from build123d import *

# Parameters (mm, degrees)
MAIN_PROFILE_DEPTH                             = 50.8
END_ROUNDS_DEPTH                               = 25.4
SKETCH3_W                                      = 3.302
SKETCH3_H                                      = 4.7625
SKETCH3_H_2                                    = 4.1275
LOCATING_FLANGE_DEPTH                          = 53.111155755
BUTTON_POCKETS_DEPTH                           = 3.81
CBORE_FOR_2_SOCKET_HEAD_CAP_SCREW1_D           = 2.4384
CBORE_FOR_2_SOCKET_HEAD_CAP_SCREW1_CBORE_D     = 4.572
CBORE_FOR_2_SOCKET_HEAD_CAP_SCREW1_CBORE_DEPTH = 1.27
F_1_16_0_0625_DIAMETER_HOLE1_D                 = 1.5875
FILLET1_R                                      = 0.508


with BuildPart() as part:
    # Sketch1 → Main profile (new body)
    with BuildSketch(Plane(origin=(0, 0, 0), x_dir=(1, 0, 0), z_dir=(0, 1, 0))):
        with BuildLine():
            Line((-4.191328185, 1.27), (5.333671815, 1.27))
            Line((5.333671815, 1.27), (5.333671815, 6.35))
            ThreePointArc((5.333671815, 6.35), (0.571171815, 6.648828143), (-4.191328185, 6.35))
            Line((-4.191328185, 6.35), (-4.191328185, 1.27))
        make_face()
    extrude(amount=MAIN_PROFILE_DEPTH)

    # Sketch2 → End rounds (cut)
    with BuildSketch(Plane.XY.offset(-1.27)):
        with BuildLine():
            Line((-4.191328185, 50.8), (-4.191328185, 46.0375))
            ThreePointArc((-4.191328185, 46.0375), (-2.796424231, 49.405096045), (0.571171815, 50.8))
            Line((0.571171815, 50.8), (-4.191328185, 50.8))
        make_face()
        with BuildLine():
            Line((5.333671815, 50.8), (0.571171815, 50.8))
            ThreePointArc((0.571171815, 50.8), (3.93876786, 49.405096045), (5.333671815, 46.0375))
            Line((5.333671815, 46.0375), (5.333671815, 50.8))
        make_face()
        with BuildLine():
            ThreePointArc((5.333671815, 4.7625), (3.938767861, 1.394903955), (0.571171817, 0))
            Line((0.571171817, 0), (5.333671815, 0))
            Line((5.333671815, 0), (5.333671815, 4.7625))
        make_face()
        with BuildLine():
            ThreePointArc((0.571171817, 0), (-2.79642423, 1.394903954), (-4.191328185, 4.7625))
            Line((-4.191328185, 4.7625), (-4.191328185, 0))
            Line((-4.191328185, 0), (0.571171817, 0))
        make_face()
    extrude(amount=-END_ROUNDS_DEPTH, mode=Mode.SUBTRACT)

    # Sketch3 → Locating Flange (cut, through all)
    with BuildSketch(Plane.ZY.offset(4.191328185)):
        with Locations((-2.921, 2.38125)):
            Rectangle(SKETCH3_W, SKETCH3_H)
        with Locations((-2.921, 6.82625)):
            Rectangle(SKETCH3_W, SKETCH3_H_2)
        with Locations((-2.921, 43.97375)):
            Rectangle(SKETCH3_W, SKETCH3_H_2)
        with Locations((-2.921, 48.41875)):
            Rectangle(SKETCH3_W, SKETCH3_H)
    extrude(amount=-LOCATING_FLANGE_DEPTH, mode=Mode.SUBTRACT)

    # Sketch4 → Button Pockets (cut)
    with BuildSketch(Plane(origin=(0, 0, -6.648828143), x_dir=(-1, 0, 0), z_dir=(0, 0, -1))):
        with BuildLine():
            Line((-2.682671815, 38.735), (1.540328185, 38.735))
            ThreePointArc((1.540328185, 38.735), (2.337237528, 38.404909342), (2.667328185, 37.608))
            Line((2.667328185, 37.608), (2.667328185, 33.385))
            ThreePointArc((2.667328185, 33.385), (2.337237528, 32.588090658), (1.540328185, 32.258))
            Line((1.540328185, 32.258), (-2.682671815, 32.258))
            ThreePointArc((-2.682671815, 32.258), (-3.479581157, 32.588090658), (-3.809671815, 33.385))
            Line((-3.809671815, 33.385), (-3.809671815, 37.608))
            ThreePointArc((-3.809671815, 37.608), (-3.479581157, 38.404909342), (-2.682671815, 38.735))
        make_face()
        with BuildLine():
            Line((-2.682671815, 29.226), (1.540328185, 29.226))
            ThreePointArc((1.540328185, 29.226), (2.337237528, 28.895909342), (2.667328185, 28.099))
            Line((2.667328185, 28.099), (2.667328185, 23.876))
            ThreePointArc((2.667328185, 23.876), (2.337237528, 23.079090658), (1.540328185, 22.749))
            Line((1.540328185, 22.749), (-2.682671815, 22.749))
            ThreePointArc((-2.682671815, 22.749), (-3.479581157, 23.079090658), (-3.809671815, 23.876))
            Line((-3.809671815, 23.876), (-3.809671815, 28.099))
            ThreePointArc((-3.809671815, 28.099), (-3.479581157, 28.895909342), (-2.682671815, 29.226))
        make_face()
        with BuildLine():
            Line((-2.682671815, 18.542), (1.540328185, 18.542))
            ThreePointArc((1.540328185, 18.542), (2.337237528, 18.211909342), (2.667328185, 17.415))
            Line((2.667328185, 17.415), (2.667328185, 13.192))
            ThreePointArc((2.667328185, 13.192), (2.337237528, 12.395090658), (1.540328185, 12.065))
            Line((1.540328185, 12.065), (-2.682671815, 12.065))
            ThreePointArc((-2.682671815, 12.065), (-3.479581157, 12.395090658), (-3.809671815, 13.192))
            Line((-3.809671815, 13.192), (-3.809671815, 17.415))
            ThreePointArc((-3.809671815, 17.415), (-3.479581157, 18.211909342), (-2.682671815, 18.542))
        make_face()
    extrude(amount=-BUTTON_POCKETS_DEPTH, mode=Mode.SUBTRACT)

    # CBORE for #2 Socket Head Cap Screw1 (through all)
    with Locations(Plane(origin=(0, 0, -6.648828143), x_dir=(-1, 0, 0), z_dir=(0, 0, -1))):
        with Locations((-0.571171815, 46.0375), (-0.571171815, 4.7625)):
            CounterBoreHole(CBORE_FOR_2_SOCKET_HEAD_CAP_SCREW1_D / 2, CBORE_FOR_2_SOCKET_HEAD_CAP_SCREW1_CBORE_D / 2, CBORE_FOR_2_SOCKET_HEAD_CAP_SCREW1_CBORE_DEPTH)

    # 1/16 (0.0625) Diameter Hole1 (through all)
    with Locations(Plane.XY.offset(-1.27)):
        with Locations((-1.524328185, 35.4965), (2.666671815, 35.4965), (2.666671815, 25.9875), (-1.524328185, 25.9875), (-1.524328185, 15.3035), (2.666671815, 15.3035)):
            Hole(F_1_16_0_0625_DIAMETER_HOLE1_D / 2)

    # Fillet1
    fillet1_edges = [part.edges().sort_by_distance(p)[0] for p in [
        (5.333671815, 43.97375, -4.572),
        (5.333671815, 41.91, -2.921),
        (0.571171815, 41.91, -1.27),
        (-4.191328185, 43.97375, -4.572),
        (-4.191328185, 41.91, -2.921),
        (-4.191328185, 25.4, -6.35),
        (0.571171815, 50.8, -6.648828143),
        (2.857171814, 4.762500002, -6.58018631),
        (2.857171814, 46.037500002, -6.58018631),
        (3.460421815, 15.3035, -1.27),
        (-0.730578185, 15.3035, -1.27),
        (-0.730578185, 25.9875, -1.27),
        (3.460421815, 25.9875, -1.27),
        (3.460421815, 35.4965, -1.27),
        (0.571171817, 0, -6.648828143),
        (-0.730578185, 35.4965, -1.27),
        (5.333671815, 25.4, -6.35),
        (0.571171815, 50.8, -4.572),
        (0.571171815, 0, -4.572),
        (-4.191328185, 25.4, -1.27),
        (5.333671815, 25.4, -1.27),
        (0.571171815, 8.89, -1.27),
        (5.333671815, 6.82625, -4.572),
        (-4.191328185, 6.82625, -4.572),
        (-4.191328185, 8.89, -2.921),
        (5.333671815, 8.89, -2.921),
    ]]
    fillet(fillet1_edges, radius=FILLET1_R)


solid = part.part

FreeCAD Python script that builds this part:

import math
import FreeCAD as App
import Part
import Sketcher
Q = App.Units.Quantity


def edges_at(feature, points):
    """Names of the edges that pass closest to the given points."""
    edges = feature.Shape.Edges
    near = lambda p: min(range(len(edges)), key=lambda i: edges[i].distToShape(Part.Vertex(*p))[0])
    return sorted({f"Edge{near(p) + 1}" for p in points})


def add_polygon(sketch, points):
    """Adds a closed chain of lines whose ends are joined by coincident constraints."""
    first, n = sketch.GeometryCount, len(points)
    for a, b in zip(points, points[1:] + points[:1]):
        sketch.addGeometry(Part.LineSegment(App.Vector(*a, 0), App.Vector(*b, 0)), False)
    for i in range(n):
        sketch.addConstraint(Sketcher.Constraint("Coincident", first + i, 2, first + (i + 1) % n, 1))

doc = App.newDocument("Part")
params = doc.addObject("Spreadsheet::Sheet", "Params")
for row, (alias, value) in enumerate([
    ("sketch1_radius", "1.5 in"),
    ("sketch1_height", "0.2 in"),
    ("sketch1_width", "0.375 in"),
    ("pad1_length", "2 in"),
    ("sketch2_radius", "0.1875 in"),
    ("pocket1_length", "1 in"),
    ("sketch3_width", "0.35 in"),
    ("sketch3_height", "0.13 in"),
    ("pocket3_length", "0.15 in"),
    ("sketch5_diameter", "0.096 in"),
    ("hole_diameter", "0.096 in"),
    ("hole_cbore_diameter", "0.18 in"),
    ("hole_cbore_depth", "0.05 in"),
    ("sketch6_diameter", "0.0625 in"),
    ("hole2_diameter", "0.0625 in"),
    ("fillet_radius", "0.02 in"),
], start=1):
    params.set(f"A{row}", alias)
    params.set(f"B{row}", "=" + value)
    params.setAlias(f"B{row}", alias)

body = doc.addObject("PartDesign::Body", "Body")

sketch1 = body.newObject("Sketcher::SketchObject", "Sketch")
sketch1.AttachmentSupport = (doc.getObject("XZ_Plane"), [""])
sketch1.MapMode = "FlatFace"
sketch1.addGeometry(Part.LineSegment(App.Vector(-4, -1, 0), App.Vector(5, -1, 0)), False)
sketch1.addGeometry(Part.LineSegment(App.Vector(5, -1, 0), App.Vector(5, -6, 0)), False)
sketch1.addGeometry(Part.ArcOfCircle(Part.Circle(App.Vector(1, 31, 0), App.Vector(0, 0, 1), 38), math.radians(-97.18), math.radians(-82.82)), False)
sketch1.addGeometry(Part.LineSegment(App.Vector(-4, -6, 0), App.Vector(-4, -1, 0)), False)
sketch1.addConstraint(Sketcher.Constraint("Coincident", 0, 2, 1, 1))
sketch1.addConstraint(Sketcher.Constraint("Coincident", 1, 2, 2, 2))
sketch1.addConstraint(Sketcher.Constraint("Coincident", 2, 1, 3, 1))
sketch1.addConstraint(Sketcher.Constraint("Coincident", 3, 2, 0, 1))
sketch1.addConstraint(Sketcher.Constraint("Horizontal", 0))
sketch1.addConstraint(Sketcher.Constraint("Vertical", 1))
sketch1.addConstraint(Sketcher.Constraint("Vertical", 3))
sketch1.addConstraint(Sketcher.Constraint("Horizontal", 1, 2, 2, 1))
sketch1.addConstraint(Sketcher.Constraint("Radius", 2, Q("1.5 in")))
sketch1.addConstraint(Sketcher.Constraint("DistanceY", 1, 2, 1, 1, Q("0.2 in")))
sketch1.addConstraint(Sketcher.Constraint("DistanceX", 0, 1, 0, 2, Q("0.375 in")))
sketch1.addConstraint(Sketcher.Constraint("DistanceY", 0, 2, -1, 1, Q("0.05 in")))
sketch1.addConstraint(Sketcher.Constraint("DistanceX", -1, 1, 2, 3, Q("0.571172 mm")))
sketch1.setExpression("Constraints[8]", "Params.sketch1_radius")
sketch1.setExpression("Constraints[9]", "Params.sketch1_height")
sketch1.setExpression("Constraints[10]", "Params.sketch1_width")
pad1 = body.newObject("PartDesign::Pad", "Pad")
pad1.Profile = sketch1
pad1.setExpression("Length", "Params.pad1_length")
pad1.Reversed = True

sketch2 = body.newObject("Sketcher::SketchObject", "Sketch001")
sketch2.AttachmentSupport = (doc.getObject("XY_Plane"), [""])
sketch2.MapMode = "FlatFace"
sketch2.AttachmentOffset = App.Placement(App.Vector(0, 0, -0.05 * 25.4), App.Rotation())
sketch2.addGeometry(Part.LineSegment(App.Vector(-4.2, 50.8, 0), App.Vector(-4.2, 46, 0)), False)
sketch2.addGeometry(Part.ArcOfCircle(Part.Circle(App.Vector(0.6, 46, 0), App.Vector(0, 0, 1), 4.8), math.radians(90), math.radians(180)), False)
sketch2.addGeometry(Part.LineSegment(App.Vector(0.6, 50.8, 0), App.Vector(-4.2, 50.8, 0)), False)
sketch2.addGeometry(Part.LineSegment(App.Vector(5.3, 50.8, 0), App.Vector(0.6, 50.8, 0)), False)
sketch2.addGeometry(Part.ArcOfCircle(Part.Circle(App.Vector(0.6, 46, 0), App.Vector(0, 0, 1), 4.8), math.radians(0), math.radians(90)), False)
sketch2.addGeometry(Part.LineSegment(App.Vector(5.3, 46, 0), App.Vector(5.3, 50.8, 0)), False)
sketch2.addGeometry(Part.ArcOfCircle(Part.Circle(App.Vector(0.6, 4.8, 0), App.Vector(0, 0, 1), 4.8), math.radians(-90), math.radians(0)), False)
sketch2.addGeometry(Part.LineSegment(App.Vector(0.6, 0, 0), App.Vector(5.3, 0, 0)), False)
sketch2.addGeometry(Part.LineSegment(App.Vector(5.3, 0, 0), App.Vector(5.3, 4.8, 0)), False)
sketch2.addGeometry(Part.ArcOfCircle(Part.Circle(App.Vector(0.6, 4.8, 0), App.Vector(0, 0, 1), 4.8), math.radians(180), math.radians(270)), False)
sketch2.addGeometry(Part.LineSegment(App.Vector(-4.2, 4.8, 0), App.Vector(-4.2, 0, 0)), False)
sketch2.addGeometry(Part.LineSegment(App.Vector(-4.2, 0, 0), App.Vector(0.6, 0, 0)), False)
sketch2.addConstraint(Sketcher.Constraint("Tangent", 0, 2, 1, 2))
sketch2.addConstraint(Sketcher.Constraint("Tangent", 1, 1, 2, 1))
sketch2.addConstraint(Sketcher.Constraint("Coincident", 2, 2, 0, 1))
sketch2.addConstraint(Sketcher.Constraint("Tangent", 3, 2, 4, 2))
sketch2.addConstraint(Sketcher.Constraint("Tangent", 4, 1, 5, 1))
sketch2.addConstraint(Sketcher.Constraint("Coincident", 5, 2, 3, 1))
sketch2.addConstraint(Sketcher.Constraint("Tangent", 6, 1, 7, 1))
sketch2.addConstraint(Sketcher.Constraint("Coincident", 7, 2, 8, 1))
sketch2.addConstraint(Sketcher.Constraint("Tangent", 8, 2, 6, 2))
sketch2.addConstraint(Sketcher.Constraint("Tangent", 9, 1, 10, 1))
sketch2.addConstraint(Sketcher.Constraint("Coincident", 10, 2, 11, 1))
sketch2.addConstraint(Sketcher.Constraint("Tangent", 11, 2, 9, 2))
sketch2.addConstraint(Sketcher.Constraint("Vertical", 0))
sketch2.addConstraint(Sketcher.Constraint("Horizontal", 2))
sketch2.addConstraint(Sketcher.Constraint("Horizontal", 3))
sketch2.addConstraint(Sketcher.Constraint("Vertical", 5))
sketch2.addConstraint(Sketcher.Constraint("Horizontal", 7))
sketch2.addConstraint(Sketcher.Constraint("Vertical", 8))
sketch2.addConstraint(Sketcher.Constraint("Vertical", 10))
sketch2.addConstraint(Sketcher.Constraint("Horizontal", 11))
sketch2.addConstraint(Sketcher.Constraint("Coincident", 4, 3, 1, 3))
sketch2.addConstraint(Sketcher.Constraint("Coincident", 9, 3, 6, 3))
sketch2.addConstraint(Sketcher.Constraint("Equal", 1, 4))
sketch2.addConstraint(Sketcher.Constraint("Equal", 4, 6))
sketch2.addConstraint(Sketcher.Constraint("Equal", 6, 9))
sketch2.addConstraint(Sketcher.Constraint("PointOnObject", 6, 1, -1))
sketch2.addConstraint(Sketcher.Constraint("Vertical", 4, 3, 6, 3))
sketch2.addConstraint(Sketcher.Constraint("DistanceY", -1, 1, 1, 1, Q("2 in")))
sketch2.addConstraint(Sketcher.Constraint("Radius", 1, Q("0.1875 in")))
sketch2.addConstraint(Sketcher.Constraint("DistanceX", -1, 1, 1, 3, Q("0.571172 mm")))
sketch2.setExpression("Constraints[28]", "Params.sketch2_radius")
pocket1 = body.newObject("PartDesign::Pocket", "Pocket")
pocket1.Profile = sketch2
pocket1.setExpression("Length", "Params.pocket1_length")

sketch3 = body.newObject("Sketcher::SketchObject", "Sketch002")
sketch3.AttachmentSupport = (doc.getObject("YZ_Plane"), [""])
sketch3.MapMode = "FlatFace"
sketch3.AttachmentOffset = App.Placement(App.Vector(0, 0, -4.191328), App.Rotation())
add_polygon(sketch3, [(0, -4.6), (0, -1.3), (8.9, -1.3), (8.9, -4.6)])
add_polygon(sketch3, [(41.9, -4.6), (41.9, -1.3), (50.8, -1.3), (50.8, -4.6)])
sketch3.addConstraint(Sketcher.Constraint("Vertical", 0))
sketch3.addConstraint(Sketcher.Constraint("Horizontal", 1))
sketch3.addConstraint(Sketcher.Constraint("Vertical", 2))
sketch3.addConstraint(Sketcher.Constraint("Horizontal", 3))
sketch3.addConstraint(Sketcher.Constraint("Vertical", 4))
sketch3.addConstraint(Sketcher.Constraint("Horizontal", 5))
sketch3.addConstraint(Sketcher.Constraint("Vertical", 6))
sketch3.addConstraint(Sketcher.Constraint("Horizontal", 7))
sketch3.addConstraint(Sketcher.Constraint("PointOnObject", 0, 2, -2))
sketch3.addConstraint(Sketcher.Constraint("Horizontal", 1, 2, 4, 2))
sketch3.addConstraint(Sketcher.Constraint("Horizontal", 3, 2, 6, 2))
sketch3.addConstraint(Sketcher.Constraint("Equal", 3, 5))
sketch3.addConstraint(Sketcher.Constraint("DistanceX", -1, 1, 5, 2, Q("2 in")))
sketch3.addConstraint(Sketcher.Constraint("DistanceX", 1, 1, 1, 2, Q("0.35 in")))
sketch3.addConstraint(Sketcher.Constraint("DistanceY", 0, 1, 0, 2, Q("0.13 in")))
sketch3.addConstraint(Sketcher.Constraint("DistanceY", 0, 2, -1, 1, Q("0.05 in")))
sketch3.setExpression("Constraints[21]", "Params.sketch3_width")
sketch3.setExpression("Constraints[22]", "Params.sketch3_height")
pocket2 = body.newObject("PartDesign::Pocket", "Pocket001")
pocket2.Profile = sketch3
pocket2.Type = "ThroughAll"
pocket2.Reversed = True

sketch4 = body.newObject("Sketcher::SketchObject", "Sketch003")
sketch4.AttachmentSupport = (doc.getObject("XY_Plane"), [""])
sketch4.MapMode = "FlatFace"
sketch4.AttachmentOffset = App.Placement(App.Vector(0, 0, -6.648828), App.Rotation())
sketch4.addGeometry(Part.LineSegment(App.Vector(-1.5, 38.7, 0), App.Vector(2.7, 38.7, 0)), False)
sketch4.addGeometry(Part.ArcOfCircle(Part.Circle(App.Vector(2.7, 37.6, 0), App.Vector(0, 0, 1), 1.1), math.radians(0), math.radians(90)), False)
sketch4.addGeometry(Part.LineSegment(App.Vector(3.8, 37.6, 0), App.Vector(3.8, 33.4, 0)), False)
sketch4.addGeometry(Part.ArcOfCircle(Part.Circle(App.Vector(2.7, 33.4, 0), App.Vector(0, 0, 1), 1.1), math.radians(-90), math.radians(0)), False)
sketch4.addGeometry(Part.LineSegment(App.Vector(2.7, 32.3, 0), App.Vector(-1.5, 32.3, 0)), False)
sketch4.addGeometry(Part.ArcOfCircle(Part.Circle(App.Vector(-1.5, 33.4, 0), App.Vector(0, 0, 1), 1.1), math.radians(180), math.radians(270)), False)
sketch4.addGeometry(Part.LineSegment(App.Vector(-2.7, 33.4, 0), App.Vector(-2.7, 37.6, 0)), False)
sketch4.addGeometry(Part.ArcOfCircle(Part.Circle(App.Vector(-1.5, 37.6, 0), App.Vector(0, 0, 1), 1.1), math.radians(90), math.radians(180)), False)
sketch4.addGeometry(Part.LineSegment(App.Vector(-1.5, 29.2, 0), App.Vector(2.7, 29.2, 0)), False)
sketch4.addGeometry(Part.ArcOfCircle(Part.Circle(App.Vector(2.7, 28.1, 0), App.Vector(0, 0, 1), 1.1), math.radians(0), math.radians(90)), False)
sketch4.addGeometry(Part.LineSegment(App.Vector(3.8, 28.1, 0), App.Vector(3.8, 23.9, 0)), False)
sketch4.addGeometry(Part.ArcOfCircle(Part.Circle(App.Vector(2.7, 23.9, 0), App.Vector(0, 0, 1), 1.1), math.radians(-90), math.radians(0)), False)
sketch4.addGeometry(Part.LineSegment(App.Vector(2.7, 22.7, 0), App.Vector(-1.5, 22.7, 0)), False)
sketch4.addGeometry(Part.ArcOfCircle(Part.Circle(App.Vector(-1.5, 23.9, 0), App.Vector(0, 0, 1), 1.1), math.radians(180), math.radians(270)), False)
sketch4.addGeometry(Part.LineSegment(App.Vector(-2.7, 23.9, 0), App.Vector(-2.7, 28.1, 0)), False)
sketch4.addGeometry(Part.ArcOfCircle(Part.Circle(App.Vector(-1.5, 28.1, 0), App.Vector(0, 0, 1), 1.1), math.radians(90), math.radians(180)), False)
sketch4.addGeometry(Part.LineSegment(App.Vector(-1.5, 18.5, 0), App.Vector(2.7, 18.5, 0)), False)
sketch4.addGeometry(Part.ArcOfCircle(Part.Circle(App.Vector(2.7, 17.4, 0), App.Vector(0, 0, 1), 1.1), math.radians(0), math.radians(90)), False)
sketch4.addGeometry(Part.LineSegment(App.Vector(3.8, 17.4, 0), App.Vector(3.8, 13.2, 0)), False)
sketch4.addGeometry(Part.ArcOfCircle(Part.Circle(App.Vector(2.7, 13.2, 0), App.Vector(0, 0, 1), 1.1), math.radians(-90), math.radians(0)), False)
sketch4.addGeometry(Part.LineSegment(App.Vector(2.7, 12.1, 0), App.Vector(-1.5, 12.1, 0)), False)
sketch4.addGeometry(Part.ArcOfCircle(Part.Circle(App.Vector(-1.5, 13.2, 0), App.Vector(0, 0, 1), 1.1), math.radians(180), math.radians(270)), False)
sketch4.addGeometry(Part.LineSegment(App.Vector(-2.7, 13.2, 0), App.Vector(-2.7, 17.4, 0)), False)
sketch4.addGeometry(Part.ArcOfCircle(Part.Circle(App.Vector(-1.5, 17.4, 0), App.Vector(0, 0, 1), 1.1), math.radians(90), math.radians(180)), False)
sketch4.addConstraint(Sketcher.Constraint("Tangent", 0, 2, 1, 2))
sketch4.addConstraint(Sketcher.Constraint("Tangent", 1, 1, 2, 1))
sketch4.addConstraint(Sketcher.Constraint("Tangent", 2, 2, 3, 2))
sketch4.addConstraint(Sketcher.Constraint("Tangent", 3, 1, 4, 1))
sketch4.addConstraint(Sketcher.Constraint("Tangent", 4, 2, 5, 2))
sketch4.addConstraint(Sketcher.Constraint("Tangent", 5, 1, 6, 1))
sketch4.addConstraint(Sketcher.Constraint("Tangent", 6, 2, 7, 2))
sketch4.addConstraint(Sketcher.Constraint("Tangent", 7, 1, 0, 1))
sketch4.addConstraint(Sketcher.Constraint("Tangent", 8, 2, 9, 2))
sketch4.addConstraint(Sketcher.Constraint("Tangent", 9, 1, 10, 1))
sketch4.addConstraint(Sketcher.Constraint("Tangent", 10, 2, 11, 2))
sketch4.addConstraint(Sketcher.Constraint("Tangent", 11, 1, 12, 1))
sketch4.addConstraint(Sketcher.Constraint("Tangent", 12, 2, 13, 2))
sketch4.addConstraint(Sketcher.Constraint("Tangent", 13, 1, 14, 1))
sketch4.addConstraint(Sketcher.Constraint("Tangent", 14, 2, 15, 2))
sketch4.addConstraint(Sketcher.Constraint("Tangent", 15, 1, 8, 1))
sketch4.addConstraint(Sketcher.Constraint("Tangent", 16, 2, 17, 2))
sketch4.addConstraint(Sketcher.Constraint("Tangent", 17, 1, 18, 1))
sketch4.addConstraint(Sketcher.Constraint("Tangent", 18, 2, 19, 2))
sketch4.addConstraint(Sketcher.Constraint("Tangent", 19, 1, 20, 1))
sketch4.addConstraint(Sketcher.Constraint("Tangent", 20, 2, 21, 2))
sketch4.addConstraint(Sketcher.Constraint("Tangent", 21, 1, 22, 1))
sketch4.addConstraint(Sketcher.Constraint("Tangent", 22, 2, 23, 2))
sketch4.addConstraint(Sketcher.Constraint("Tangent", 23, 1, 16, 1))
sketch4.addConstraint(Sketcher.Constraint("Horizontal", 0))
sketch4.addConstraint(Sketcher.Constraint("Vertical", 2))
sketch4.addConstraint(Sketcher.Constraint("Horizontal", 4))
sketch4.addConstraint(Sketcher.Constraint("Vertical", 6))
sketch4.addConstraint(Sketcher.Constraint("Horizontal", 8))
sketch4.addConstraint(Sketcher.Constraint("Vertical", 10))
sketch4.addConstraint(Sketcher.Constraint("Horizontal", 12))
sketch4.addConstraint(Sketcher.Constraint("Vertical", 14))
sketch4.addConstraint(Sketcher.Constraint("Horizontal", 16))
sketch4.addConstraint(Sketcher.Constraint("Vertical", 18))
sketch4.addConstraint(Sketcher.Constraint("Horizontal", 20))
sketch4.addConstraint(Sketcher.Constraint("Vertical", 22))
sketch4.addConstraint(Sketcher.Constraint("Equal", 1, 3))
sketch4.addConstraint(Sketcher.Constraint("Equal", 3, 5))
sketch4.addConstraint(Sketcher.Constraint("Equal", 5, 7))
sketch4.addConstraint(Sketcher.Constraint("Equal", 7, 9))
sketch4.addConstraint(Sketcher.Constraint("Equal", 9, 11))
sketch4.addConstraint(Sketcher.Constraint("Equal", 11, 13))
sketch4.addConstraint(Sketcher.Constraint("Equal", 13, 15))
sketch4.addConstraint(Sketcher.Constraint("Equal", 15, 17))
sketch4.addConstraint(Sketcher.Constraint("Equal", 17, 19))
sketch4.addConstraint(Sketcher.Constraint("Equal", 19, 21))
sketch4.addConstraint(Sketcher.Constraint("Equal", 21, 23))
sketch4.addConstraint(Sketcher.Constraint("Vertical", 3, 3, 9, 3))
sketch4.addConstraint(Sketcher.Constraint("Vertical", 7, 3, 13, 3))
sketch4.addConstraint(Sketcher.Constraint("Vertical", 11, 3, 17, 3))
sketch4.addConstraint(Sketcher.Constraint("Vertical", 15, 3, 21, 3))
sketch4.addConstraint(Sketcher.Constraint("Equal", 20, 2))
sketch4.addConstraint(Sketcher.Constraint("Equal", 6, 10))
sketch4.addConstraint(Sketcher.Constraint("Equal", 14, 18))
sketch4.addConstraint(Sketcher.Constraint("DistanceY", -1, 1, 11, 3, Q("0.94 in")))
sketch4.addConstraint(Sketcher.Constraint("DistanceY", -1, 1, 3, 1, Q("1.27 in")))
sketch4.addConstraint(Sketcher.Constraint("DistanceY", -1, 1, 16, 2, Q("0.73 in")))
sketch4.addConstraint(Sketcher.Constraint("Radius", 1, Q("1.127 mm")))
sketch4.addConstraint(Sketcher.Constraint("DistanceY", -1, 1, 0, 2, Q("1.525 in")))
sketch4.addConstraint(Sketcher.Constraint("DistanceX", -1, 1, 1, 3, Q("2.682672 mm")))
pocket3 = body.newObject("PartDesign::Pocket", "Pocket002")
pocket3.Profile = sketch4
pocket3.setExpression("Length", "Params.pocket3_length")
pocket3.Reversed = True

sketch5 = body.newObject("Sketcher::SketchObject", "Sketch004")
sketch5.AttachmentSupport = (doc.getObject("XY_Plane"), [""])
sketch5.MapMode = "FlatFace"
sketch5.AttachmentOffset = App.Placement(App.Vector(0, 0, -6.648828), App.Rotation())
sketch5.addGeometry(Part.Circle(App.Vector(0.6, 46, 0), App.Vector(0, 0, 1), 1.2), False)
sketch5.addGeometry(Part.Circle(App.Vector(0.6, 4.8, 0), App.Vector(0, 0, 1), 1.2), False)
sketch5.addConstraint(Sketcher.Constraint("Equal", 0, 1))
sketch5.addConstraint(Sketcher.Constraint("Vertical", 0, 3, 1, 3))
sketch5.addConstraint(Sketcher.Constraint("Diameter", 0, Q("0.096 in")))
sketch5.addConstraint(Sketcher.Constraint("DistanceY", -1, 1, 0, 3, Q("1.8125 in")))
sketch5.addConstraint(Sketcher.Constraint("DistanceY", -1, 1, 1, 3, Q("0.1875 in")))
sketch5.addConstraint(Sketcher.Constraint("DistanceX", -1, 1, 0, 3, Q("0.571172 mm")))
sketch5.setExpression("Constraints[2]", "Params.sketch5_diameter")
doc.recompute()
hole = body.newObject("PartDesign::Hole", "Hole")
hole.Profile = sketch5
hole.ThreadType = "None"
hole.setExpression("Diameter", "Params.hole_diameter")
hole.DepthType = "ThroughAll"
hole.HoleCutType = "Counterbore"
hole.setExpression("HoleCutDiameter", "Params.hole_cbore_diameter")
hole.setExpression("HoleCutDepth", "Params.hole_cbore_depth")
hole.Reversed = True

sketch6 = body.newObject("Sketcher::SketchObject", "Sketch005")
sketch6.AttachmentSupport = (doc.getObject("XY_Plane"), [""])
sketch6.MapMode = "FlatFace"
sketch6.AttachmentOffset = App.Placement(App.Vector(0, 0, -0.05 * 25.4), App.Rotation())
sketch6.addGeometry(Part.Circle(App.Vector(-1.5, 35.5, 0), App.Vector(0, 0, 1), 0.8), False)
sketch6.addGeometry(Part.Circle(App.Vector(2.7, 35.5, 0), App.Vector(0, 0, 1), 0.8), False)
sketch6.addGeometry(Part.Circle(App.Vector(2.7, 26, 0), App.Vector(0, 0, 1), 0.8), False)
sketch6.addGeometry(Part.Circle(App.Vector(-1.5, 26, 0), App.Vector(0, 0, 1), 0.8), False)
sketch6.addGeometry(Part.Circle(App.Vector(-1.5, 15.3, 0), App.Vector(0, 0, 1), 0.8), False)
sketch6.addGeometry(Part.Circle(App.Vector(2.7, 15.3, 0), App.Vector(0, 0, 1), 0.8), False)
sketch6.addConstraint(Sketcher.Constraint("Equal", 0, 1))
sketch6.addConstraint(Sketcher.Constraint("Equal", 1, 2))
sketch6.addConstraint(Sketcher.Constraint("Equal", 2, 3))
sketch6.addConstraint(Sketcher.Constraint("Equal", 3, 4))
sketch6.addConstraint(Sketcher.Constraint("Equal", 4, 5))
sketch6.addConstraint(Sketcher.Constraint("Horizontal", 0, 3, 1, 3))
sketch6.addConstraint(Sketcher.Constraint("Horizontal", 2, 3, 3, 3))
sketch6.addConstraint(Sketcher.Constraint("Horizontal", 4, 3, 5, 3))
sketch6.addConstraint(Sketcher.Constraint("Vertical", 1, 3, 2, 3))
sketch6.addConstraint(Sketcher.Constraint("Vertical", 0, 3, 3, 3))
sketch6.addConstraint(Sketcher.Constraint("Vertical", 3, 3, 4, 3))
sketch6.addConstraint(Sketcher.Constraint("Vertical", 2, 3, 5, 3))
sketch6.addConstraint(Sketcher.Constraint("Diameter", 0, Q("0.0625 in")))
sketch6.addConstraint(Sketcher.Constraint("DistanceX", 0, 3, 1, 3, Q("0.165 in")))
sketch6.addConstraint(Sketcher.Constraint("DistanceY", 4, 3, 0, 3, Q("0.795 in")))
sketch6.addConstraint(Sketcher.Constraint("DistanceY", -1, 1, 0, 3, Q("1.3975 in")))
sketch6.addConstraint(Sketcher.Constraint("DistanceY", -1, 1, 2, 3, Q("25.9875 mm")))
sketch6.addConstraint(Sketcher.Constraint("DistanceX", 0, 3, -1, 1, Q("1.524328 mm")))
sketch6.setExpression("Constraints[12]", "Params.sketch6_diameter")
doc.recompute()
hole2 = body.newObject("PartDesign::Hole", "Hole001")
hole2.Profile = sketch6
hole2.ThreadType = "None"
hole2.setExpression("Diameter", "Params.hole2_diameter")
hole2.DepthType = "ThroughAll"
doc.recompute()

fillet = body.newObject("PartDesign::Fillet", "Fillet")
fillet.Base = (hole2, edges_at(hole2, [
    (5.334, 43.974, -4.572),
    (5.334, 41.91, -2.921),
    (0.571, 41.91, -1.27),
    (-4.191, 43.974, -4.572),
    (-4.191, 41.91, -2.921),
    (-4.191, 25.4, -6.35),
    (0.571, 50.8, -5.61),
    (2.857, 4.763, -6.58),
    (2.857, 46.038, -6.58),
    (3.46, 15.303, -1.27),
    (-0.731, 15.303, -1.27),
    (-0.731, 25.988, -1.27),
    (3.46, 25.988, -1.27),
    (3.46, 35.496, -1.27),
    (3.939, 1.395, -6.5),
    (-0.731, 35.496, -1.27),
    (5.334, 25.4, -6.35),
    (-2.796, 49.405, -4.572),
    (-2.796, 1.395, -4.572),
    (-4.191, 25.4, -1.27),
    (5.334, 25.4, -1.27),
    (0.571, 8.89, -1.27),
    (5.334, 6.826, -4.572),
    (-4.191, 6.826, -4.572),
    (-4.191, 8.89, -2.921),
    (5.334, 8.89, -2.921),
]))
fillet.setExpression("Radius", "Params.fillet_radius")

doc.recompute()
